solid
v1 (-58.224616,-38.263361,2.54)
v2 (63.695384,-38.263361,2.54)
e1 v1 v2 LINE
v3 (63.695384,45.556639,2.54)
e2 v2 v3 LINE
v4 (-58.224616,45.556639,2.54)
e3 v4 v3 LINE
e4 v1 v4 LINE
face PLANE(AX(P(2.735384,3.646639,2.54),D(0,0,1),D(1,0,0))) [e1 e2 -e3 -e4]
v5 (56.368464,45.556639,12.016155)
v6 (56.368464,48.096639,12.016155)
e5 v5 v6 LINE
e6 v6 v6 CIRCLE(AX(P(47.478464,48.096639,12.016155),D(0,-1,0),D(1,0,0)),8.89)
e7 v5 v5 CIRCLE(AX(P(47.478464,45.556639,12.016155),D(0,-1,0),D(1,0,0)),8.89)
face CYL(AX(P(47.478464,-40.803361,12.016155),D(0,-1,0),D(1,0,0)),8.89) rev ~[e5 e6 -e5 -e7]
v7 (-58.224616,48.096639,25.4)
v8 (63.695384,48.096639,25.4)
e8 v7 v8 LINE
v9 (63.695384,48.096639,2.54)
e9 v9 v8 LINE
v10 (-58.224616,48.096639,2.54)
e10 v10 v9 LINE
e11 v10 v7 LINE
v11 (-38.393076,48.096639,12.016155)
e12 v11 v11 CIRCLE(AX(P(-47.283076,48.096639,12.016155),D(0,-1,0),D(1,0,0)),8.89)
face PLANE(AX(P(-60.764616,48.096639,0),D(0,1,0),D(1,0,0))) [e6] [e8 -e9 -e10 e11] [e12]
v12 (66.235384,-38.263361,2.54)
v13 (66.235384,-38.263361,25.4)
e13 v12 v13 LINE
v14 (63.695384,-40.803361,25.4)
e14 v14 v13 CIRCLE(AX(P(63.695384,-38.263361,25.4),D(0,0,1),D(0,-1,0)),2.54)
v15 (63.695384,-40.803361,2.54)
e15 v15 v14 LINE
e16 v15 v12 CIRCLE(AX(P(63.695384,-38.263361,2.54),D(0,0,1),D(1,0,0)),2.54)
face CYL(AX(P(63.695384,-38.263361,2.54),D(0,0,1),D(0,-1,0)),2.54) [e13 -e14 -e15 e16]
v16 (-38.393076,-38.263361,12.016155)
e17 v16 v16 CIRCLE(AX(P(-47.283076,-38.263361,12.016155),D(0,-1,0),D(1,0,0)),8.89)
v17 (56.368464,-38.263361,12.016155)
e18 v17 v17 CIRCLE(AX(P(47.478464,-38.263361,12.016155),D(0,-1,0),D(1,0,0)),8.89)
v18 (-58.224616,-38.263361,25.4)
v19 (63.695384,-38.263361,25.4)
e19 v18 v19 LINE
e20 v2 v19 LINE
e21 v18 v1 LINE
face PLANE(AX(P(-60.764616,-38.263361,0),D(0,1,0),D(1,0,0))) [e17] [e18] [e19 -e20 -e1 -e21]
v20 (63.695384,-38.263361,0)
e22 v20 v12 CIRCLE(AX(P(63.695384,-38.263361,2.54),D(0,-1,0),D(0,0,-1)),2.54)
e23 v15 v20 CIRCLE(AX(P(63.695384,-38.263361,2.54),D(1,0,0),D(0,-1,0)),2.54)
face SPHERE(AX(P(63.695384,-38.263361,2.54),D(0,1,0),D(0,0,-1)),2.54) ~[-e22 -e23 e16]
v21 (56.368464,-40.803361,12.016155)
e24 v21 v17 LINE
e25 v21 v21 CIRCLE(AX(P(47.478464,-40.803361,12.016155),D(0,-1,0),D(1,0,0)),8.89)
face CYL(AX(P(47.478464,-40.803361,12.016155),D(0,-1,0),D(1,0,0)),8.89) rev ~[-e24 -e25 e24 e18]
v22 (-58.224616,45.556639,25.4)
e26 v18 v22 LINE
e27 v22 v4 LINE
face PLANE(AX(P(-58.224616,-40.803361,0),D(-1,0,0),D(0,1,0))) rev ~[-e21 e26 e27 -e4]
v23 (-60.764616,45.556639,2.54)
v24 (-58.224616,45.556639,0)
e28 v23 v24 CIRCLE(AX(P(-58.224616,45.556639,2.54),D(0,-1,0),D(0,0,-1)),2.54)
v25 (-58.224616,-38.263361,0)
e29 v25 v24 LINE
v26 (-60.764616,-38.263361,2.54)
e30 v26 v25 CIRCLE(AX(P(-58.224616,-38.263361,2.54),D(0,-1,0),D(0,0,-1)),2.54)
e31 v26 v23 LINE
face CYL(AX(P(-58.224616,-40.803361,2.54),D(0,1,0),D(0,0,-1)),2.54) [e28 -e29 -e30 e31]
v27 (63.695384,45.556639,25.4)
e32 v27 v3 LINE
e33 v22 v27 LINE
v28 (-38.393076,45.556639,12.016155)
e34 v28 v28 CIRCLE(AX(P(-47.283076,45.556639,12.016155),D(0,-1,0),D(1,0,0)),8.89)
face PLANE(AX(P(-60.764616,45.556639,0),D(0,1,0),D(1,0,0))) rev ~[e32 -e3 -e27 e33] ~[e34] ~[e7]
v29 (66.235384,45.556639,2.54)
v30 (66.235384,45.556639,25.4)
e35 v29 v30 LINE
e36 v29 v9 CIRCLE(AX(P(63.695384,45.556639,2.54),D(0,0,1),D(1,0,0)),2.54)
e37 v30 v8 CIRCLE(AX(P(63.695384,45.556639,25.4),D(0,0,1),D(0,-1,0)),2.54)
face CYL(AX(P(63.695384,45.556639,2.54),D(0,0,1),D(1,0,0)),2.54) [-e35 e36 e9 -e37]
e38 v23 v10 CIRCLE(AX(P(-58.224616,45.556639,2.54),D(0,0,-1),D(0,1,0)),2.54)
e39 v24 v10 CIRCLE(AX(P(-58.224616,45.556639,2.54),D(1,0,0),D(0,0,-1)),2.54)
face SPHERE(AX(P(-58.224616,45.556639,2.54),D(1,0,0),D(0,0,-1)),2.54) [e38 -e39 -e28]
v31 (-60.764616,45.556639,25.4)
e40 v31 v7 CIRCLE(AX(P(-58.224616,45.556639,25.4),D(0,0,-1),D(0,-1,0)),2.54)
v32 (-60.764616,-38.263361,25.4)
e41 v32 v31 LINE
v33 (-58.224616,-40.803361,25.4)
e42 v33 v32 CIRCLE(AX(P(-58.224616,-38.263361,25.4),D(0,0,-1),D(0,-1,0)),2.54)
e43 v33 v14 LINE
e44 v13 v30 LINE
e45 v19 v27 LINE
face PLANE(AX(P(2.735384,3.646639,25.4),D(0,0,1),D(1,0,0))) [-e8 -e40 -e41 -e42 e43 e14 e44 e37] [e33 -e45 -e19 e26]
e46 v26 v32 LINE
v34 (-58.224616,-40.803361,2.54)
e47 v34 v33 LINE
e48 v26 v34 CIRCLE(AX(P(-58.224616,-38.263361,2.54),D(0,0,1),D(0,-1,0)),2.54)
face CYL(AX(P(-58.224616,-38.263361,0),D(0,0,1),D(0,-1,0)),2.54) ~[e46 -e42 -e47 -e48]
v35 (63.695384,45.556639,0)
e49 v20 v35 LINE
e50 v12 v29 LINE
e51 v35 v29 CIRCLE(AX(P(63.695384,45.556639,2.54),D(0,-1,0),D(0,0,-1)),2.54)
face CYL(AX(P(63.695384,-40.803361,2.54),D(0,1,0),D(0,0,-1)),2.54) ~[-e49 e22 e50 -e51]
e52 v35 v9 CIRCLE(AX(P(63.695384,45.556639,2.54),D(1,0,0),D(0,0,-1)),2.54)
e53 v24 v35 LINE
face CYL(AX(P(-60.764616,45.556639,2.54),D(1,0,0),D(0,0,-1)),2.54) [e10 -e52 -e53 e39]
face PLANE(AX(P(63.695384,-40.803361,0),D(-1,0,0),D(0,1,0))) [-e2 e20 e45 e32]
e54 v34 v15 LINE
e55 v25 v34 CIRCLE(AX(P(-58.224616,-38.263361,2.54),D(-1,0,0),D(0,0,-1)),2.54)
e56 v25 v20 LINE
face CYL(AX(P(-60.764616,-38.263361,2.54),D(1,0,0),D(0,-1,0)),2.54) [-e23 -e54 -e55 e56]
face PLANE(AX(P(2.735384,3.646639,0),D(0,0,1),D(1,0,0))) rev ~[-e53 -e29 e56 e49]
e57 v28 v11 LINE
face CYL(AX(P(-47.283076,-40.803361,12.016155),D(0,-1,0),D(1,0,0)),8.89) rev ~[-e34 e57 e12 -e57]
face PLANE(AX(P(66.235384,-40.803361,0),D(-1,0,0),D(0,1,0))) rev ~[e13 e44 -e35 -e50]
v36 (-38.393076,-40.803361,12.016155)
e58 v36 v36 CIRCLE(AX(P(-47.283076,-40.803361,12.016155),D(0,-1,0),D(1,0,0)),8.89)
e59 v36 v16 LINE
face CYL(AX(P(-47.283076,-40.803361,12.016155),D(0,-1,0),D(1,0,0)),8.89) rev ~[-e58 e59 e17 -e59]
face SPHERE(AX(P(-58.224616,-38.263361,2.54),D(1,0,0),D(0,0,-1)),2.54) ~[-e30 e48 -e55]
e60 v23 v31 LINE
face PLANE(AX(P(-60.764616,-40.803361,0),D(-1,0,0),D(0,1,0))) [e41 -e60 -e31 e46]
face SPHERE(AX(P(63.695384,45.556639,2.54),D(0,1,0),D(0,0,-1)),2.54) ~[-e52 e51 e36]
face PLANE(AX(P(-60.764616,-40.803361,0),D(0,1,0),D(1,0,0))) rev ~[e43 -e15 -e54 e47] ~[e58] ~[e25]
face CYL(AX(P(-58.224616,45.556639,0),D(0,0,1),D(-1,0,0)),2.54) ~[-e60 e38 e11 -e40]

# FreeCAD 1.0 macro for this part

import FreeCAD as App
import Part
import Sketcher

V = App.Vector
Q = App.Units.Quantity


def edges_at(feature, points):
    """Names of the edges that pass closest to the given points."""
    edges = feature.Shape.Edges
    near = lambda p: min(range(len(edges)), key=lambda i: edges[i].distToShape(Part.Vertex(*p))[0])
    return sorted({f"Edge{near(p) + 1}" for p in points})


def faces_at(feature, points):
    """Names of the faces that lie closest to the given points."""
    faces = feature.Shape.Faces
    near = lambda p: min(range(len(faces)), key=lambda i: faces[i].distToShape(Part.Vertex(*p))[0])
    return sorted({f"Face{near(p) + 1}" for p in points})

doc = App.newDocument("Part")
params = doc.addObject("Spreadsheet::Sheet", "Params")
for row, (alias, value) in enumerate([
    ("sketch1_width", "5 in"),
    ("sketch1_height", "3.5 in"),
    ("pad1_length", "1 in"),
    ("thickness_wall", "0.1 in"),
    ("sketch2_diameter", "0.7 in"),
    ("pocket1_length", "50 in"),
    ("fillet_radius", "0.1 in"),
    ("fillet2_radius", "0.1 in"),
], start=1):
    params.set(f"A{row}", alias)
    params.set(f"B{row}", "=" + value)
    params.setAlias(f"B{row}", alias)

body = doc.addObject("PartDesign::Body", "Body")

# Sketch on XY plane
sketch1 = body.newObject("Sketcher::SketchObject", "Sketch")
sketch1.AttachmentSupport = (doc.getObject("XY_Plane"), [""])
sketch1.MapMode = "FlatFace"
sketch1.addGeometry([
    Part.LineSegment(V(-61, 48, 0), V(-61, -41, 0)),
    Part.LineSegment(V(-61, -41, 0), V(66, -41, 0)),
    Part.LineSegment(V(66, -41, 0), V(66, 48, 0)),
    Part.LineSegment(V(66, 48, 0), V(-61, 48, 0)),
], False)
sketch1.addConstraint([
    Sketcher.Constraint("Coincident", 0, 2, 1, 1),
    Sketcher.Constraint("Coincident", 1, 2, 2, 1),
    Sketcher.Constraint("Coincident", 2, 2, 3, 1),
    Sketcher.Constraint("Coincident", 3, 2, 0, 1),
    Sketcher.Constraint("Vertical", 0),
    Sketcher.Constraint("Horizontal", 1),
    Sketcher.Constraint("Vertical", 2),
    Sketcher.Constraint("Horizontal", 3),
    Sketcher.Constraint("DistanceX", 1, 1, 1, 2, Q("5 in")),
    Sketcher.Constraint("DistanceY", 0, 2, 0, 1, Q("3.5 in")),
    Sketcher.Constraint("DistanceY", 0, 2, -1, 1, Q("40.803361 mm")),
    Sketcher.Constraint("DistanceX", 0, 2, -1, 1, Q("60.764616 mm")),
])
sketch1.setExpression("Constraints[8]", "Params.sketch1_width")
sketch1.setExpression("Constraints[9]", "Params.sketch1_height")
pad1 = body.newObject("PartDesign::Pad", "Pad")
pad1.Profile = sketch1
pad1.setExpression("Length", "Params.pad1_length")
doc.recompute()

thickness = body.newObject("PartDesign::Thickness", "Thickness")
thickness.Base = (pad1, faces_at(pad1, [(2.735, 3.647, 25.4)]))
thickness.setExpression("Value", "Params.thickness_wall")
thickness.Reversed = True
thickness.Join = "Arc"

# Sketch on XZ plane
sketch2 = body.newObject("Sketcher::SketchObject", "Sketch001")
sketch2.AttachmentSupport = (doc.getObject("XZ_Plane"), [""])
sketch2.MapMode = "FlatFace"
sketch2.AttachmentOffset = App.Placement(V(0, 0, 40.803361), App.Rotation())
sketch2.addGeometry([
    Part.Circle(V(-47, 12, 0), V(0, 0, 1), 9),
    Part.Circle(V(47, 12, 0), V(0, 0, 1), 9),
], False)
sketch2.addConstraint([
    Sketcher.Constraint("Equal", 0, 1),
    Sketcher.Constraint("Horizontal", 0, 3, 1, 3),
    Sketcher.Constraint("Diameter", 0, Q("0.7 in")),
    Sketcher.Constraint("DistanceX", 0, 3, 1, 3, Q("94.76154 mm")),
    Sketcher.Constraint("DistanceX", 0, 3, -1, 1, Q("47.283076 mm")),
    Sketcher.Constraint("DistanceY", -1, 1, 0, 3, Q("12.016155 mm")),
])
sketch2.setExpression("Constraints[2]", "Params.sketch2_diameter")
pocket1 = body.newObject("PartDesign::Pocket", "Pocket")
pocket1.Profile = sketch2
pocket1.setExpression("Length", "Params.pocket1_length")
doc.recompute()

fillet = body.newObject("PartDesign::Fillet", "Fillet")
fillet.Base = (pocket1, edges_at(pocket1, [(66.235, 3.647, 0)]))
fillet.setExpression("Radius", "Params.fillet_radius")
doc.recompute()

fillet2 = body.newObject("PartDesign::Fillet", "Fillet001")
fillet2.Base = (fillet, edges_at(fillet, [
    (1.465, -40.803, 0),
    (66.235, -40.803, 13.97),
    (66.235, 48.097, 13.97),
    (1.465, 48.097, 0),
    (-60.765, 3.647, 0),
    (-60.765, 48.097, 12.7),
    (-60.765, -40.803, 12.7),
]))
fillet2.setExpression("Radius", "Params.fillet2_radius")

doc.recompute()
